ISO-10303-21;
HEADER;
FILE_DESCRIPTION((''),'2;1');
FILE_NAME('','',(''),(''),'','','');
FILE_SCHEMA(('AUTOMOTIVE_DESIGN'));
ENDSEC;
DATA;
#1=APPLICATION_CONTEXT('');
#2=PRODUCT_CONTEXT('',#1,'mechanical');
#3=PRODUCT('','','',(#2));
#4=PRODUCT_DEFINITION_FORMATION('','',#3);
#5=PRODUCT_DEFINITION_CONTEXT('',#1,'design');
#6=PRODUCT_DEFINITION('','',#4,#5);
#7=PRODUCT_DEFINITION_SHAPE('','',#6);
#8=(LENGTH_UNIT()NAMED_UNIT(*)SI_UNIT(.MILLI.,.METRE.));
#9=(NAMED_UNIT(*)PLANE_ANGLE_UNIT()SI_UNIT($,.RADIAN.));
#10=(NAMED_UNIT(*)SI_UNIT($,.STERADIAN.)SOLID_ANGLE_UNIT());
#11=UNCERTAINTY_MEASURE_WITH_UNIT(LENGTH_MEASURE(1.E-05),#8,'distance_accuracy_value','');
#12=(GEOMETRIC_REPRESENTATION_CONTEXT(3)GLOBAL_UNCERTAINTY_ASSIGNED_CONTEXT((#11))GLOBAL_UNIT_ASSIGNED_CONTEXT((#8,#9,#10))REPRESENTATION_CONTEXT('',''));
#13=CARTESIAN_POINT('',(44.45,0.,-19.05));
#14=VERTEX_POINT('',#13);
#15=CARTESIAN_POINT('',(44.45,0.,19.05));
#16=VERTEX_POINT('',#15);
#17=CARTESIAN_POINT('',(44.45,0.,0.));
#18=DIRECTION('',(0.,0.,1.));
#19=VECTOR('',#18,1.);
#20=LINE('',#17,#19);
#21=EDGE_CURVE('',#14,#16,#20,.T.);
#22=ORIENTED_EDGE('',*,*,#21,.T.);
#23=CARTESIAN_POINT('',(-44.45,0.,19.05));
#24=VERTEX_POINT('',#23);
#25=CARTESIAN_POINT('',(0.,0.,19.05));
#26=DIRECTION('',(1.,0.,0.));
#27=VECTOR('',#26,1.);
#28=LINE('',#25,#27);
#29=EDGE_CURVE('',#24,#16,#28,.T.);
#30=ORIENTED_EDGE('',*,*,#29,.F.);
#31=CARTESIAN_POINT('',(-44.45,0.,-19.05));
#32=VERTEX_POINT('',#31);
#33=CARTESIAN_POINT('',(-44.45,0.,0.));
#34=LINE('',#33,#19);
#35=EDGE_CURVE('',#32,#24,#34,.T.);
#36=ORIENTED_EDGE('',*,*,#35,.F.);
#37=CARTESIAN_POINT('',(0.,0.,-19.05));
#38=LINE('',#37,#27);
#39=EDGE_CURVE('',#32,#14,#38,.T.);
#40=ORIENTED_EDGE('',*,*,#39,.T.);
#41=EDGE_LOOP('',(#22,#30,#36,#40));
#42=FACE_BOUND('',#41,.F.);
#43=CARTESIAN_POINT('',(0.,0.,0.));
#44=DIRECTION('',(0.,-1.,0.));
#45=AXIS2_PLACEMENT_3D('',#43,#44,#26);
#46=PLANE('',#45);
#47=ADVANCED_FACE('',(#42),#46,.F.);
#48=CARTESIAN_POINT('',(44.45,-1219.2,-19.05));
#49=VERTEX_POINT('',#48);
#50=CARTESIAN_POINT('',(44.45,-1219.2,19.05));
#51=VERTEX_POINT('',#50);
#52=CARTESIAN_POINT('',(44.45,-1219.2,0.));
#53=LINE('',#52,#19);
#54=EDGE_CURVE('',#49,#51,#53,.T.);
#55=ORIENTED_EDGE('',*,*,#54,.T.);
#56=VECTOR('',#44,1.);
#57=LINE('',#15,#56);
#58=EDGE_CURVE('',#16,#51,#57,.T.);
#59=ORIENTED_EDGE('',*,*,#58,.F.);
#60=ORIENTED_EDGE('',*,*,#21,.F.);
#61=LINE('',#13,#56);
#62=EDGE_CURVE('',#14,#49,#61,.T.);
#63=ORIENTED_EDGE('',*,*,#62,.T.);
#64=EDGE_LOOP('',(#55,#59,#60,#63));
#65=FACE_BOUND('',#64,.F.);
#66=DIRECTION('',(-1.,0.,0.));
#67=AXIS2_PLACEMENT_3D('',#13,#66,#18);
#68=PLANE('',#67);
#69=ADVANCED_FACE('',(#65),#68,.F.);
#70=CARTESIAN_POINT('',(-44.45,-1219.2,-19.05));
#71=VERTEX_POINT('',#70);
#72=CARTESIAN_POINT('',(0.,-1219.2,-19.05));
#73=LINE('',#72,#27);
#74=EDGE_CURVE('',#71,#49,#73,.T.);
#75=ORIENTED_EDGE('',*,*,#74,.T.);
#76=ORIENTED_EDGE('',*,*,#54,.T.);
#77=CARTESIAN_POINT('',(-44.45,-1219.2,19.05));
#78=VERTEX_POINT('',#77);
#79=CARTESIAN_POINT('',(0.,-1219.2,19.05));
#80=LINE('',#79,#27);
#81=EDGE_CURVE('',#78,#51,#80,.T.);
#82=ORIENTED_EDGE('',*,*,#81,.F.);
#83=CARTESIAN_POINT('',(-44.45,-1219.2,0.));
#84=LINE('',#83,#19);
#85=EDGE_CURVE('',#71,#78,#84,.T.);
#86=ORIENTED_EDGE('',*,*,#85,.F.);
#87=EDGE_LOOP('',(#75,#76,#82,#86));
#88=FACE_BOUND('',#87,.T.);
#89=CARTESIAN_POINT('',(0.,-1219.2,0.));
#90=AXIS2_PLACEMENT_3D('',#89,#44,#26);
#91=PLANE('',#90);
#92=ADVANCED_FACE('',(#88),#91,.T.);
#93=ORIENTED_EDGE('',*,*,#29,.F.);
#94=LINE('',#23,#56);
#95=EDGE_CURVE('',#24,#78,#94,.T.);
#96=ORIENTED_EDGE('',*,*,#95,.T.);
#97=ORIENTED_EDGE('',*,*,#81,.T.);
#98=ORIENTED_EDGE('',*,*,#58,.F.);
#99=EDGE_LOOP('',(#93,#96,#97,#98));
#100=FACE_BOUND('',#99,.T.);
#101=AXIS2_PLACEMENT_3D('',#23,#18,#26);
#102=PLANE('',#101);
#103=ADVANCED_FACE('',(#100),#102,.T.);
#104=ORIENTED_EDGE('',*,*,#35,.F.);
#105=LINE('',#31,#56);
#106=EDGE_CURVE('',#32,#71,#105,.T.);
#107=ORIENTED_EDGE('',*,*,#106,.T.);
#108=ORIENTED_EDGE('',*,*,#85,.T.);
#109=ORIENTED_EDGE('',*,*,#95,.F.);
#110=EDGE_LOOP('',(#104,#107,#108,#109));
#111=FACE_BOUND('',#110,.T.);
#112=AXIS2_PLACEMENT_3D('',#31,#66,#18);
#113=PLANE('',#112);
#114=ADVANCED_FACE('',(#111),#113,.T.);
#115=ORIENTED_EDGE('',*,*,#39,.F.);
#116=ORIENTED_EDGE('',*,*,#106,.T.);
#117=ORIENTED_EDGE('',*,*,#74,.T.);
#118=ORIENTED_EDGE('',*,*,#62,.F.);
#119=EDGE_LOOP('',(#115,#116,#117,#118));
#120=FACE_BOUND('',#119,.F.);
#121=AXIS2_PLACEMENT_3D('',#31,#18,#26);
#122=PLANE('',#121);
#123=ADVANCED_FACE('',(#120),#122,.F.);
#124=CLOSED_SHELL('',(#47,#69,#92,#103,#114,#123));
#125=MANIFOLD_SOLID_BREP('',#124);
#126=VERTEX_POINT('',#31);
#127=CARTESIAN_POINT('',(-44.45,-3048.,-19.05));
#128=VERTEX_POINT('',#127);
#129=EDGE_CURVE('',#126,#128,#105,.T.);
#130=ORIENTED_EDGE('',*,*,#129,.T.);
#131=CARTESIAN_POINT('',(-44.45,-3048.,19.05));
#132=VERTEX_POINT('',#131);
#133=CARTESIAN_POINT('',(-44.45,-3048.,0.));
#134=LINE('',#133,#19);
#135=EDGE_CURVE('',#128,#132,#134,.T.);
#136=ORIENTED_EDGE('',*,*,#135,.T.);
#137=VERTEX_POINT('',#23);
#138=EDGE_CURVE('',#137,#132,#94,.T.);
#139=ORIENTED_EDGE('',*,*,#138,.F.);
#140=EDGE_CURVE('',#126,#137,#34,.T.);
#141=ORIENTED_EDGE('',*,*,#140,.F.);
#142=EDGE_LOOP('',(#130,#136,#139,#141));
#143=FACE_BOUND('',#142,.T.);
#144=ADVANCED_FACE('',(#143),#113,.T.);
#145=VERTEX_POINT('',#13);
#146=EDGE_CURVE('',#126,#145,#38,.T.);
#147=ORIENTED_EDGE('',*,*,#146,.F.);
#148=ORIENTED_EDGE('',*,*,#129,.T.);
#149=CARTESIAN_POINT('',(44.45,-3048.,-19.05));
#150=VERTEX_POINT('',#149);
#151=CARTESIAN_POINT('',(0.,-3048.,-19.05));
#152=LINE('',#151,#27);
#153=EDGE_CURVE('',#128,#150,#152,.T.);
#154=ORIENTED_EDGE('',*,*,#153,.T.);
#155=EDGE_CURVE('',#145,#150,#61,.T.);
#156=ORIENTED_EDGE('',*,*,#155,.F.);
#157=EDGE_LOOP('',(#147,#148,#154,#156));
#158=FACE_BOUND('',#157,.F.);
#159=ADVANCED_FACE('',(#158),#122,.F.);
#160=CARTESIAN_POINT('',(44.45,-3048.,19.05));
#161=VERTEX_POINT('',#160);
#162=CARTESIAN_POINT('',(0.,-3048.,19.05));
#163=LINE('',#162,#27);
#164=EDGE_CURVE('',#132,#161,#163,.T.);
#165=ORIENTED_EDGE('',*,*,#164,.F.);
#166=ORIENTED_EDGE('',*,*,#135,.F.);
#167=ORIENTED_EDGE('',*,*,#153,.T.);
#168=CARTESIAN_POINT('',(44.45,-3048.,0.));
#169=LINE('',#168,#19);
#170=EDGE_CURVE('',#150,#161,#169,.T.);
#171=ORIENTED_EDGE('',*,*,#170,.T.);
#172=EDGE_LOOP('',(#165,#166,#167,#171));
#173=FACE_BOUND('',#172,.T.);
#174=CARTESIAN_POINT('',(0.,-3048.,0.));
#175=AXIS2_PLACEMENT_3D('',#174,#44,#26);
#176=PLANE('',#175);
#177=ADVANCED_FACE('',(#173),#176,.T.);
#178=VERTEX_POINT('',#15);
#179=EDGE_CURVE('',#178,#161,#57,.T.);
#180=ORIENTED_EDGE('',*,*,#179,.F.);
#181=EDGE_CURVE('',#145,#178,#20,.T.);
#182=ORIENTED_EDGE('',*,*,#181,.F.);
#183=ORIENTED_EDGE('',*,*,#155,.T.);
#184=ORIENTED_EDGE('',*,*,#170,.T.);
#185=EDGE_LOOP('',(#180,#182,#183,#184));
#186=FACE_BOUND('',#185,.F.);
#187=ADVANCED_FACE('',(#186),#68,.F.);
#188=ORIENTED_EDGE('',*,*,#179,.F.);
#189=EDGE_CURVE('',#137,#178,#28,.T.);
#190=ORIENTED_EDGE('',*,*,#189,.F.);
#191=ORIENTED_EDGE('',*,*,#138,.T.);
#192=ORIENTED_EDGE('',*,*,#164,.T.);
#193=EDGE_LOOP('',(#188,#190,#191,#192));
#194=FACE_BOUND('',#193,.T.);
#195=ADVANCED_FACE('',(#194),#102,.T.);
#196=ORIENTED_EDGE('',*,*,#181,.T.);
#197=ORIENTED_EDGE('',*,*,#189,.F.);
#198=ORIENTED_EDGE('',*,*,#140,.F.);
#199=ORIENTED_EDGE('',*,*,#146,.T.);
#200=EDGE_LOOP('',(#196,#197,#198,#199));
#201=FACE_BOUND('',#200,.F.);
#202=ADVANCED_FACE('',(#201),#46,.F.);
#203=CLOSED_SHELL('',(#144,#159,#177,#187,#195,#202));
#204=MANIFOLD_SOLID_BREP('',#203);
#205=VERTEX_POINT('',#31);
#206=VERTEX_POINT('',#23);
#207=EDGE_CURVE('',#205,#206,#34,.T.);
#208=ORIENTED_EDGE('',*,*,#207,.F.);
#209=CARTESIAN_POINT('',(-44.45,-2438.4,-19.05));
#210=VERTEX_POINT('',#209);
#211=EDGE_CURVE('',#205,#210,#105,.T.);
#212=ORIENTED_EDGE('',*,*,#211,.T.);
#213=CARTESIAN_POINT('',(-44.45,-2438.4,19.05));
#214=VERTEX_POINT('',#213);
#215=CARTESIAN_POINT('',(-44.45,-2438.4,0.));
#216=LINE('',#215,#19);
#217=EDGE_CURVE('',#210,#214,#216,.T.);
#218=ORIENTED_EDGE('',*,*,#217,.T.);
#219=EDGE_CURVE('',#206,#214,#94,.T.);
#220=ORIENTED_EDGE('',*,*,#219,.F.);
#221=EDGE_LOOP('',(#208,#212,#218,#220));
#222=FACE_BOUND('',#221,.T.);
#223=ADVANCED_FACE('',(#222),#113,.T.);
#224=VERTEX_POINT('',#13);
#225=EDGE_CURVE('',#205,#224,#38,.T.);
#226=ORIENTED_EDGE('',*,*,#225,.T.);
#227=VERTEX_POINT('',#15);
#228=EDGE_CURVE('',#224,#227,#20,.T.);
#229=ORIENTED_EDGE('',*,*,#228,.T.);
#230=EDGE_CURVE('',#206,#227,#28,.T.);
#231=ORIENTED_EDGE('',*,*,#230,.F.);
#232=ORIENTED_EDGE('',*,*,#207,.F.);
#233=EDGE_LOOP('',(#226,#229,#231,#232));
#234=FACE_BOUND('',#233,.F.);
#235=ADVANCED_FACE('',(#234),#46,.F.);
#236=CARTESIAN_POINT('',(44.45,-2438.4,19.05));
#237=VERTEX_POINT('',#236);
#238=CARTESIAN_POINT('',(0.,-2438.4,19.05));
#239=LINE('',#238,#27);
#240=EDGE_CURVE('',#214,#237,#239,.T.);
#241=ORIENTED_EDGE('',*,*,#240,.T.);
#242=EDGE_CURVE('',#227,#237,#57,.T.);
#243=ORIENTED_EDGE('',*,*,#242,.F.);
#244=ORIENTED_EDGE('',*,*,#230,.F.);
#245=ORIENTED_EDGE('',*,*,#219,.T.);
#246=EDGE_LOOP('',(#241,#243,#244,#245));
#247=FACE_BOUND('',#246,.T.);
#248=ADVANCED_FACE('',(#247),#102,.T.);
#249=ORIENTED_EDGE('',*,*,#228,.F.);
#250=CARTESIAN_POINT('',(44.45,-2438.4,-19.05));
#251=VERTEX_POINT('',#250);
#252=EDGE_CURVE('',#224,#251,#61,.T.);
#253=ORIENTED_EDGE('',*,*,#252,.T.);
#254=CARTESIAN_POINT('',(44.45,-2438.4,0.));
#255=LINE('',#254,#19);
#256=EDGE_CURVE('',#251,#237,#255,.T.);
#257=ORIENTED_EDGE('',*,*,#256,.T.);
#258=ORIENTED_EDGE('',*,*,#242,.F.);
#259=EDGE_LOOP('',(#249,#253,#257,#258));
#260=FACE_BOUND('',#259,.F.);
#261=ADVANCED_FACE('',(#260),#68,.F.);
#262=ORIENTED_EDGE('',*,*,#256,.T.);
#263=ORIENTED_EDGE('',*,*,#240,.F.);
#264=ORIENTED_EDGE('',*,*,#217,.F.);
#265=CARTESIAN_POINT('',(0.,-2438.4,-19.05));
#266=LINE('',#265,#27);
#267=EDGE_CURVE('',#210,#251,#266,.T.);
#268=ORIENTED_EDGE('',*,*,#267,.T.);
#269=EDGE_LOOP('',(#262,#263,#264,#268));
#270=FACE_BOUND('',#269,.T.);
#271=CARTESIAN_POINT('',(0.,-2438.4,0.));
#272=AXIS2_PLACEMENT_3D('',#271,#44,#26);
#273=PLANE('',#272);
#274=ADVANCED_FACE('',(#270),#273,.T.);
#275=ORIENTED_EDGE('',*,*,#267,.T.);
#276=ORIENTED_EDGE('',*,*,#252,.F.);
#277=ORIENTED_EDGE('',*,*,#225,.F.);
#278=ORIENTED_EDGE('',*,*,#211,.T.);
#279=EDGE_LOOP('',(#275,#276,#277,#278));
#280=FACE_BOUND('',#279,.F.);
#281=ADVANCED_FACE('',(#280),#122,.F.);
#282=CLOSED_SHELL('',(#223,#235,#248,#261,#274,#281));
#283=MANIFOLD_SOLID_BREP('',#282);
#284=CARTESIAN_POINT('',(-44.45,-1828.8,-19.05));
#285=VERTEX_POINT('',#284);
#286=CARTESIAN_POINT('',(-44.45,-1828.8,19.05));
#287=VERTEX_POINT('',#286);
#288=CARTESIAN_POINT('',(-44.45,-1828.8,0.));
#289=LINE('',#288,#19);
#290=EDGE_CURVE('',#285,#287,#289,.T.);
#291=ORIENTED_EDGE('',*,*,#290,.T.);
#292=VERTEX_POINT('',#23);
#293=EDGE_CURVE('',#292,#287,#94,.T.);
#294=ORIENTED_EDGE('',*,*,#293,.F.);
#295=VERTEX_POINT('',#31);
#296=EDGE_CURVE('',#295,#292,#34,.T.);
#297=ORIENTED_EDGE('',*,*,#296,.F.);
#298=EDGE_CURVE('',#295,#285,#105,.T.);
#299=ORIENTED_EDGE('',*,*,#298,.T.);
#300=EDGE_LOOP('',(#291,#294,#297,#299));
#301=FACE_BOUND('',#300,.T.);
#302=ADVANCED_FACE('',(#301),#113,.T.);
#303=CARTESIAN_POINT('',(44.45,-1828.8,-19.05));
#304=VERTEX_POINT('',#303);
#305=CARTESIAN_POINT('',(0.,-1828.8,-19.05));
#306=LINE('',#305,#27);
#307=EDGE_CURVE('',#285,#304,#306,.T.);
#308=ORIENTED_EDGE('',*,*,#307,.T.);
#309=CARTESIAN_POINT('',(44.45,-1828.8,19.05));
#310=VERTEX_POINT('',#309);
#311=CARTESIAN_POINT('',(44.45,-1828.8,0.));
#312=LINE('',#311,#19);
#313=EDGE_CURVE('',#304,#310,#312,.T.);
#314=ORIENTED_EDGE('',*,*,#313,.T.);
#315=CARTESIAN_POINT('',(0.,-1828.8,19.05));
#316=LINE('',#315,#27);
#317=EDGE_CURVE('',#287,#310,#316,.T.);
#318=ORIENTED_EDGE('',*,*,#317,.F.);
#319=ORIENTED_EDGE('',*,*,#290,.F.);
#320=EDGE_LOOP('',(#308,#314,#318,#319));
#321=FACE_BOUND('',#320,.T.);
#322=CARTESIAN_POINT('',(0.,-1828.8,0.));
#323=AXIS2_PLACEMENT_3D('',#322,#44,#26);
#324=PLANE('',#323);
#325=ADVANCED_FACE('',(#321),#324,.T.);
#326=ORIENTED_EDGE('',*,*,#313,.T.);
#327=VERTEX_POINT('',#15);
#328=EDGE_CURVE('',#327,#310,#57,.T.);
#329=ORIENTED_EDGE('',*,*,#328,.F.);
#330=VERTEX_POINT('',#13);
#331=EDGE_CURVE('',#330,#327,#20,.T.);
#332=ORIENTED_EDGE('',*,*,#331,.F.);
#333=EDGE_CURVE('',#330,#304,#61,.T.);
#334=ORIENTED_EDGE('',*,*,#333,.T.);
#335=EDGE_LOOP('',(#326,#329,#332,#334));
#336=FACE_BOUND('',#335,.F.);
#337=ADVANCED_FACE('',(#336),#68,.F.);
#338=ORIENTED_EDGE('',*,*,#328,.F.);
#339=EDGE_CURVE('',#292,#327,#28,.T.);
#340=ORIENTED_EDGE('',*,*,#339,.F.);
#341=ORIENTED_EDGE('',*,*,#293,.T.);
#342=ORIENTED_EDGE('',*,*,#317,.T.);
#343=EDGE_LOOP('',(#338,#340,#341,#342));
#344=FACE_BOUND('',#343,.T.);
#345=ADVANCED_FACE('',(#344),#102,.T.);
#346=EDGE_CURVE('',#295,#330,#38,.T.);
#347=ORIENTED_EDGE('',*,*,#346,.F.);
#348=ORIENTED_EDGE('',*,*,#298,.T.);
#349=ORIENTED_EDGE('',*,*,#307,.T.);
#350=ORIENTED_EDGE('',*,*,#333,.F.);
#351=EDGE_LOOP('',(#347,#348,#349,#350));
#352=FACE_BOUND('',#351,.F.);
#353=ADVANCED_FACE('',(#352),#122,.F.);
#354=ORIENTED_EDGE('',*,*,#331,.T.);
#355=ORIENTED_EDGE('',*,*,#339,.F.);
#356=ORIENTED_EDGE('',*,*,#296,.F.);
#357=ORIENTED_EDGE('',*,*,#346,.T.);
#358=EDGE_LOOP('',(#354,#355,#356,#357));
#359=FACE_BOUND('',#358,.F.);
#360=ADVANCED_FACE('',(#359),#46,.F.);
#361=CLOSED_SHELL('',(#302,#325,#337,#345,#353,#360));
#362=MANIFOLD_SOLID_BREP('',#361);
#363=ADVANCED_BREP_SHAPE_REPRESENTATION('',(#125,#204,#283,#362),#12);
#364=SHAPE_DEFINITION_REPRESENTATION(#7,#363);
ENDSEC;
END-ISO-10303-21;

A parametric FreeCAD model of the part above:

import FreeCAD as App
import Part
import Sketcher
Q = App.Units.Quantity

doc = App.newDocument("Part")
body = doc.addObject("PartDesign::Body", "Body")

# Sketch on XZ plane
sketch1 = body.newObject("Sketcher::SketchObject", "Sketch")
sketch1.AttachmentSupport = (doc.getObject("XZ_Plane"), [""])
sketch1.MapMode = "FlatFace"
sketch1.addGeometry([
    Part.LineSegment(App.Vector(-44, 19, 0), App.Vector(-44, -19, 0)),
    Part.LineSegment(App.Vector(-44, -19, 0), App.Vector(44, -19, 0)),
    Part.LineSegment(App.Vector(44, -19, 0), App.Vector(44, 19, 0)),
    Part.LineSegment(App.Vector(44, 19, 0), App.Vector(-44, 19, 0)),
], False)
sketch1.addConstraint([
    Sketcher.Constraint("Coincident", 0, 2, 1, 1),
    Sketcher.Constraint("Coincident", 1, 2, 2, 1),
    Sketcher.Constraint("Coincident", 2, 2, 3, 1),
    Sketcher.Constraint("Coincident", 3, 2, 0, 1),
    Sketcher.Constraint("Vertical", 0),
    Sketcher.Constraint("Horizontal", 1),
    Sketcher.Constraint("Vertical", 2),
    Sketcher.Constraint("Horizontal", 3),
    Sketcher.Constraint("Symmetric", 0, 2, 2, 2, -1, 1),
    Sketcher.Constraint("DistanceX", 1, 1, 1, 2, Q("3.5 in")),
    Sketcher.Constraint("DistanceY", 0, 2, 0, 1, Q("1.5 in")),
])
pad1 = body.newObject("PartDesign::Pad", "Pad")
pad1.Profile = sketch1
pad1.Length = Q("96 in")
body2 = doc.addObject("PartDesign::Body", "Body001")

# Sketch on XZ plane
sketch2 = body2.newObject("Sketcher::SketchObject", "Sketch001")
sketch2.AttachmentSupport = (doc.getObject("XZ_Plane001"), [""])
sketch2.MapMode = "FlatFace"
sketch2.addGeometry([
    Part.LineSegment(App.Vector(-44, 19, 0), App.Vector(-44, -19, 0)),
    Part.LineSegment(App.Vector(-44, -19, 0), App.Vector(44, -19, 0)),
    Part.LineSegment(App.Vector(44, -19, 0), App.Vector(44, 19, 0)),
    Part.LineSegment(App.Vector(44, 19, 0), App.Vector(-44, 19, 0)),
], False)
sketch2.addConstraint([
    Sketcher.Constraint("Coincident", 0, 2, 1, 1),
    Sketcher.Constraint("Coincident", 1, 2, 2, 1),
    Sketcher.Constraint("Coincident", 2, 2, 3, 1),
    Sketcher.Constraint("Coincident", 3, 2, 0, 1),
    Sketcher.Constraint("Vertical", 0),
    Sketcher.Constraint("Horizontal", 1),
    Sketcher.Constraint("Vertical", 2),
    Sketcher.Constraint("Horizontal", 3),
    Sketcher.Constraint("Symmetric", 0, 2, 2, 2, -1, 1),
    Sketcher.Constraint("DistanceX", 1, 1, 1, 2, Q("3.5 in")),
    Sketcher.Constraint("DistanceY", 0, 2, 0, 1, Q("1.5 in")),
])
pad2 = body2.newObject("PartDesign::Pad", "Pad001")
pad2.Profile = sketch2
pad2.Length = Q("120 in")
body3 = doc.addObject("PartDesign::Body", "Body002")

# Sketch on XZ plane
sketch3 = body3.newObject("Sketcher::SketchObject", "Sketch002")
sketch3.AttachmentSupport = (doc.getObject("XZ_Plane002"), [""])
sketch3.MapMode = "FlatFace"
sketch3.addGeometry([
    Part.LineSegment(App.Vector(-44, 19, 0), App.Vector(-44, -19, 0)),
    Part.LineSegment(App.Vector(-44, -19, 0), App.Vector(44, -19, 0)),
    Part.LineSegment(App.Vector(44, -19, 0), App.Vector(44, 19, 0)),
    Part.LineSegment(App.Vector(44, 19, 0), App.Vector(-44, 19, 0)),
], False)
sketch3.addConstraint([
    Sketcher.Constraint("Coincident", 0, 2, 1, 1),
    Sketcher.Constraint("Coincident", 1, 2, 2, 1),
    Sketcher.Constraint("Coincident", 2, 2, 3, 1),
    Sketcher.Constraint("Coincident", 3, 2, 0, 1),
    Sketcher.Constraint("Vertical", 0),
    Sketcher.Constraint("Horizontal", 1),
    Sketcher.Constraint("Vertical", 2),
    Sketcher.Constraint("Horizontal", 3),
    Sketcher.Constraint("Symmetric", 0, 2, 2, 2, -1, 1),
    Sketcher.Constraint("DistanceX", 1, 1, 1, 2, Q("3.5 in")),
    Sketcher.Constraint("DistanceY", 0, 2, 0, 1, Q("1.5 in")),
])
pad3 = body3.newObject("PartDesign::Pad", "Pad002")
pad3.Profile = sketch3
pad3.Length = Q("72 in")
body4 = doc.addObject("PartDesign::Body", "Body003")

# Sketch on XZ plane
sketch4 = body4.newObject("Sketcher::SketchObject", "Sketch003")
sketch4.AttachmentSupport = (doc.getObject("XZ_Plane003"), [""])
sketch4.MapMode = "FlatFace"
sketch4.addGeometry([
    Part.LineSegment(App.Vector(-44, 19, 0), App.Vector(-44, -19, 0)),
    Part.LineSegment(App.Vector(-44, -19, 0), App.Vector(44, -19, 0)),
    Part.LineSegment(App.Vector(44, -19, 0), App.Vector(44, 19, 0)),
    Part.LineSegment(App.Vector(44, 19, 0), App.Vector(-44, 19, 0)),
], False)
sketch4.addConstraint([
    Sketcher.Constraint("Coincident", 0, 2, 1, 1),
    Sketcher.Constraint("Coincident", 1, 2, 2, 1),
    Sketcher.Constraint("Coincident", 2, 2, 3, 1),
    Sketcher.Constraint("Coincident", 3, 2, 0, 1),
    Sketcher.Constraint("Vertical", 0),
    Sketcher.Constraint("Horizontal", 1),
    Sketcher.Constraint("Vertical", 2),
    Sketcher.Constraint("Horizontal", 3),
    Sketcher.Constraint("Symmetric", 0, 2, 2, 2, -1, 1),
    Sketcher.Constraint("DistanceX", 1, 1, 1, 2, Q("3.5 in")),
    Sketcher.Constraint("DistanceY", 0, 2, 0, 1, Q("1.5 in")),
])
pad4 = body4.newObject("PartDesign::Pad", "Pad003")
pad4.Profile = sketch4
pad4.Length = Q("48 in")

doc.recompute()
